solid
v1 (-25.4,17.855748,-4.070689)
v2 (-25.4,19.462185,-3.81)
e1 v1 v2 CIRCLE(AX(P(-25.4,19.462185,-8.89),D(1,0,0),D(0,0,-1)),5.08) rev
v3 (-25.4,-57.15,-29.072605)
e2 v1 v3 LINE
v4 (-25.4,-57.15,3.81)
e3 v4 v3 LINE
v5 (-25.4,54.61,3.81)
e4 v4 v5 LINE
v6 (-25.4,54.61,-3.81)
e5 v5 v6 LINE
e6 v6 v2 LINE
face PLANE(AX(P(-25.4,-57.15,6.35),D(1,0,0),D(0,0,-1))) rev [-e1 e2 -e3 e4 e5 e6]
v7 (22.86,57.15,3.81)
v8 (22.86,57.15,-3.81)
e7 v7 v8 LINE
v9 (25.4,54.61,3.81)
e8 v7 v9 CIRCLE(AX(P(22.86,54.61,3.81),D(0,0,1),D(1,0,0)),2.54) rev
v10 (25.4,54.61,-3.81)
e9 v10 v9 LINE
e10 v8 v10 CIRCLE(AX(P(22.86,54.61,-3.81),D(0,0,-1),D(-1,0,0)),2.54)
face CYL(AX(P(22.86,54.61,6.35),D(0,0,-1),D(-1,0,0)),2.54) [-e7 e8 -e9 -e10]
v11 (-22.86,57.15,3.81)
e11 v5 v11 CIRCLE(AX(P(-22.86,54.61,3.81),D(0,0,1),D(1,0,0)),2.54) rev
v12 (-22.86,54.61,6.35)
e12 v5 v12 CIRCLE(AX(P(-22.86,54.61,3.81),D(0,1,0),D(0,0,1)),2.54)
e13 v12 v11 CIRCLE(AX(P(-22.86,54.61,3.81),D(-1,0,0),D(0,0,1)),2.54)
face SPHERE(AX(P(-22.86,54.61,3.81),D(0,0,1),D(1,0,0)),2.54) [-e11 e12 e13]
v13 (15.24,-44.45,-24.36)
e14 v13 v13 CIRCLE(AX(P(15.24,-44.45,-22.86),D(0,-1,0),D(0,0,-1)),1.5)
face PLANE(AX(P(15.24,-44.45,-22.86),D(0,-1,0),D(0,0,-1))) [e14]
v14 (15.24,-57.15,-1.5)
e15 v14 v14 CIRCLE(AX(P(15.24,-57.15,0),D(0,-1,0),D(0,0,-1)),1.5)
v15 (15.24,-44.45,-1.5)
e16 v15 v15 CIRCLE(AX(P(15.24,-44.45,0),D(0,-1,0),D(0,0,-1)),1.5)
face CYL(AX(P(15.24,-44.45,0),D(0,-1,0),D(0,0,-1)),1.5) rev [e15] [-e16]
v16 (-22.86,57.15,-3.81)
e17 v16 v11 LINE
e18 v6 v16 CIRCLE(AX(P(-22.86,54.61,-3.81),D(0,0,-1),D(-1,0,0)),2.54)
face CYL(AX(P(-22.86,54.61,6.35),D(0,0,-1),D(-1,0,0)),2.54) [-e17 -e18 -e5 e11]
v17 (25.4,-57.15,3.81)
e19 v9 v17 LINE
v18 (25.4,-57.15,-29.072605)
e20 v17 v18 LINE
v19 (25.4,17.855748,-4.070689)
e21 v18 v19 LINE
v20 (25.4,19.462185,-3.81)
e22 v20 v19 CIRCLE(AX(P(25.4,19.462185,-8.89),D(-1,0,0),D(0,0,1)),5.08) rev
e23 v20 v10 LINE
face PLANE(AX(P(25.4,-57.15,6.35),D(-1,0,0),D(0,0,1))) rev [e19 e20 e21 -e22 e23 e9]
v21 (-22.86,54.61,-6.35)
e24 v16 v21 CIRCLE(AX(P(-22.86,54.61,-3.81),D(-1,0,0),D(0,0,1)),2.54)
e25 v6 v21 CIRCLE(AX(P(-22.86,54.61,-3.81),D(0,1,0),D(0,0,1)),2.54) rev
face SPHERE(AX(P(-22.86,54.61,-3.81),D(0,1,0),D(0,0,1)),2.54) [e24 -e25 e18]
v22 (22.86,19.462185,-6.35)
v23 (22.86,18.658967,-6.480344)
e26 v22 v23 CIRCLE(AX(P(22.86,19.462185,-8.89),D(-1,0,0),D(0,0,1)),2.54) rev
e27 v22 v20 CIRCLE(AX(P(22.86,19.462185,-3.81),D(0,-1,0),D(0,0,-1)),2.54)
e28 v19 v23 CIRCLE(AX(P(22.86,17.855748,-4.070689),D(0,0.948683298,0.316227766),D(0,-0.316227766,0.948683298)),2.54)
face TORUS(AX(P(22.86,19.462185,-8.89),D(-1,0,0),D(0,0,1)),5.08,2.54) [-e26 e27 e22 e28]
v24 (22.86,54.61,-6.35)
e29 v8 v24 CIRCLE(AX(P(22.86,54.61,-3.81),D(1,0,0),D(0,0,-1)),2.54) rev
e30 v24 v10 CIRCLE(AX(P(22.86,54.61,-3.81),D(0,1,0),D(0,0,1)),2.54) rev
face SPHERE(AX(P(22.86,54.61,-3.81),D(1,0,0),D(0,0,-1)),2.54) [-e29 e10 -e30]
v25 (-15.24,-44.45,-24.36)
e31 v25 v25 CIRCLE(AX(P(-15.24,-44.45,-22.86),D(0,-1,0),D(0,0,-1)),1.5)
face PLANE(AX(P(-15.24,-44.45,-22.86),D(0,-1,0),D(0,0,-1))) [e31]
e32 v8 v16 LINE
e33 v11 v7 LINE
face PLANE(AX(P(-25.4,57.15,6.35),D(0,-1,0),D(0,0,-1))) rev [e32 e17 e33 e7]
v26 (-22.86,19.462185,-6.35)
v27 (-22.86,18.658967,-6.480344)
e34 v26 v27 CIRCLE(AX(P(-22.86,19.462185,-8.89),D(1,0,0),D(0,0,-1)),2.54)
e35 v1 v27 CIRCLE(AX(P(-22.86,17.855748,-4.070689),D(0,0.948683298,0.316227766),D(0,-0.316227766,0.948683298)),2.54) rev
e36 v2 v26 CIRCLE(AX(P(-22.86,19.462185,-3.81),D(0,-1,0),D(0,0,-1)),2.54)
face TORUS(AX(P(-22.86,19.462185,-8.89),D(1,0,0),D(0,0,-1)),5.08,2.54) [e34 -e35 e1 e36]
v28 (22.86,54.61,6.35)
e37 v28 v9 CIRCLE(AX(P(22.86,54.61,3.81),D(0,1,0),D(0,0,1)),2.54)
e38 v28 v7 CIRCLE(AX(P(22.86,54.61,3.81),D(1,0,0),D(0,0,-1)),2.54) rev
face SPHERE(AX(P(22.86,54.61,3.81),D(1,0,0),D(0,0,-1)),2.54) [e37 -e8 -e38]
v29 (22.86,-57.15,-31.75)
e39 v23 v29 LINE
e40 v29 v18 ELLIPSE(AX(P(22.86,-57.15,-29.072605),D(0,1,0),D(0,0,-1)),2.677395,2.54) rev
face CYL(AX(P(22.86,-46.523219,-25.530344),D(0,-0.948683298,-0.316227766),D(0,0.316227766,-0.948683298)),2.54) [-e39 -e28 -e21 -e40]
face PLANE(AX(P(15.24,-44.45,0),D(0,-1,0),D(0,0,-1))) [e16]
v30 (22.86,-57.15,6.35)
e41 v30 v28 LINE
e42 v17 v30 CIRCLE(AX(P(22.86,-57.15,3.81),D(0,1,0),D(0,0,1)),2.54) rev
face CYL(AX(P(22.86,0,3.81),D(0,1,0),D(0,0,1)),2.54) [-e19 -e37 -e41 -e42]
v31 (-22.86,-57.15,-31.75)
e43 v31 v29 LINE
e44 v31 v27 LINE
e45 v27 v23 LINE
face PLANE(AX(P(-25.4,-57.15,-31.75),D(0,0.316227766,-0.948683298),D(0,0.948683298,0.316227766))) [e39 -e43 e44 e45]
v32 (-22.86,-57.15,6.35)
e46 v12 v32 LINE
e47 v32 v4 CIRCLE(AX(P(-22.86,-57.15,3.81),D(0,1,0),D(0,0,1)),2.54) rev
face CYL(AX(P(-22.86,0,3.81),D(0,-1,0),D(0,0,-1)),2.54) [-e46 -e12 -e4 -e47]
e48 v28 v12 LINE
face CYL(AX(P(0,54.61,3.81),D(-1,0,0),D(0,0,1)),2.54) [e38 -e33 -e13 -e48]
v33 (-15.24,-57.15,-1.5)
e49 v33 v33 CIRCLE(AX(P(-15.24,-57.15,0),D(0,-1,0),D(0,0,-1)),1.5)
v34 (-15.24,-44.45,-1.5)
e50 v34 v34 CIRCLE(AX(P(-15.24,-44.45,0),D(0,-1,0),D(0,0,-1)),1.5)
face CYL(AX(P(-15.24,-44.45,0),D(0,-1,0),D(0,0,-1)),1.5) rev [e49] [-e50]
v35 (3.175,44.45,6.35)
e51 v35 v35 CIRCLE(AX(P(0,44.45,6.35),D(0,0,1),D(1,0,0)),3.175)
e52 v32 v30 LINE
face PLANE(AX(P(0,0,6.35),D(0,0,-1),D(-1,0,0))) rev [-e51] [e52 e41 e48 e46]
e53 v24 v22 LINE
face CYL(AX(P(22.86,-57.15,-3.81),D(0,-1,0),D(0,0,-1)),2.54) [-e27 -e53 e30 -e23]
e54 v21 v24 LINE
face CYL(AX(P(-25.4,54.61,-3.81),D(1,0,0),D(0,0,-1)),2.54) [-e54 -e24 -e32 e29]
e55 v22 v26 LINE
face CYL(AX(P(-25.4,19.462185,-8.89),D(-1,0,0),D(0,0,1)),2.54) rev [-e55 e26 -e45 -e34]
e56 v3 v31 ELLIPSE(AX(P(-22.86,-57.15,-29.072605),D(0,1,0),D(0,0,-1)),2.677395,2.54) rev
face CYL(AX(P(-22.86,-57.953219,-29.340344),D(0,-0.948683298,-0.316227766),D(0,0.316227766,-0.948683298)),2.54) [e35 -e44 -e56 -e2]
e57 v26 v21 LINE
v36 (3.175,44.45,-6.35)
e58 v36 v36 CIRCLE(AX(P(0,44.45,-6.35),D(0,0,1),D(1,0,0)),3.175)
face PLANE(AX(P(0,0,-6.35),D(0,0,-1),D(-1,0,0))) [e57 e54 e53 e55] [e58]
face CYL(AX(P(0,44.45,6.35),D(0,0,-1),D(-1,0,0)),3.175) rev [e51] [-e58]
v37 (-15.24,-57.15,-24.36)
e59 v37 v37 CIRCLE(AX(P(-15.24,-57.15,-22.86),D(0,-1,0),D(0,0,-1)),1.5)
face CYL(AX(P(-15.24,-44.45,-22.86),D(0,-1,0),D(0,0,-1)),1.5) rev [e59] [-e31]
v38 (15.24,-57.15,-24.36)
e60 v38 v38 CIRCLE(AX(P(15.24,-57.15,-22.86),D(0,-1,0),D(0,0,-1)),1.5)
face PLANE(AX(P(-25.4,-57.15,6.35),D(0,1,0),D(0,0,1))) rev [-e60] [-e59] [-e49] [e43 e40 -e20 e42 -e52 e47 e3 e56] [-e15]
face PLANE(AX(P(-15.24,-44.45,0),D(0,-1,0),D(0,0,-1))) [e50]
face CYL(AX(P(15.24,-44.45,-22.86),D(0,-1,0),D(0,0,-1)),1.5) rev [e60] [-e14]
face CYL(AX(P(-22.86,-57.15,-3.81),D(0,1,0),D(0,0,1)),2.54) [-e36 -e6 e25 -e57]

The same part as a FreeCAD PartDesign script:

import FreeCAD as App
import Part
import Sketcher

V = App.Vector
Q = App.Units.Quantity


def edges_at(feature, points):
    """Names of the edges that pass closest to the given points."""
    edges = feature.Shape.Edges
    near = lambda p: min(range(len(edges)), key=lambda i: edges[i].distToShape(Part.Vertex(*p))[0])
    return sorted({f"Edge{near(p) + 1}" for p in points})


def add_polygon(sketch, points):
    """Adds a closed chain of lines whose ends are joined by coincident constraints."""
    first, n = sketch.GeometryCount, len(points)
    for a, b in zip(points, points[1:] + points[:1]):
        sketch.addGeometry(Part.LineSegment(App.Vector(*a, 0), App.Vector(*b, 0)), False)
    for i in range(n):
        sketch.addConstraint(Sketcher.Constraint("Coincident", first + i, 2, first + (i + 1) % n, 1))

doc = App.newDocument("Part")
body = doc.addObject("PartDesign::Body", "Body")

sketch1 = body.newObject("Sketcher::SketchObject", "Sketch")
sketch1.AttachmentSupport = (doc.getObject("XY_Plane"), [""])
sketch1.MapMode = "FlatFace"
add_polygon(sketch1, [(-25.4, 57.1), (-25.4, -57.1), (25.4, -57.1), (25.4, 57.1)])
sketch1.addGeometry(Part.Circle(V(0, 44.5, 0), V(0, 0, 1), 3.2), False)
sketch1.addConstraint(Sketcher.Constraint("Vertical", 0))
sketch1.addConstraint(Sketcher.Constraint("Horizontal", 1))
sketch1.addConstraint(Sketcher.Constraint("Vertical", 2))
sketch1.addConstraint(Sketcher.Constraint("Horizontal", 3))
sketch1.addConstraint(Sketcher.Constraint("Symmetric", 0, 2, 2, 2, -1, 1))
sketch1.addConstraint(Sketcher.Constraint("PointOnObject", 4, 3, -2))
sketch1.addConstraint(Sketcher.Constraint("Diameter", 4, Q("0.25 in")))
sketch1.addConstraint(Sketcher.Constraint("DistanceX", 1, 1, 1, 2, Q("2 in")))
sketch1.addConstraint(Sketcher.Constraint("DistanceY", 0, 2, 0, 1, Q("4.5 in")))
sketch1.addConstraint(Sketcher.Constraint("DistanceY", 0, 2, 4, 3, Q("4 in")))
pad1 = body.newObject("PartDesign::Pad", "Pad")
pad1.Profile = sketch1
pad1.Length = Q("0.5 in")
pad1.Midplane = True

sketch2 = body.newObject("Sketcher::SketchObject", "Sketch001")
sketch2.AttachmentSupport = (doc.getObject("YZ_Plane"), [""])
sketch2.MapMode = "FlatFace"
sketch2.AttachmentOffset = App.Placement(V(0, 0, 1 * 25.4), App.Rotation())
add_polygon(sketch2, [(-57, -6), (-57, -32), (19, -6)])
sketch2.addConstraint(Sketcher.Constraint("Vertical", 0))
sketch2.addConstraint(Sketcher.Constraint("Horizontal", 2))
sketch2.addConstraint(Sketcher.Constraint("DistanceX", 2, 2, 2, 1, Q("3 in")))
sketch2.addConstraint(Sketcher.Constraint("DistanceY", 0, 2, 0, 1, Q("1 in")))
sketch2.addConstraint(Sketcher.Constraint("DistanceX", 0, 2, -1, 1, Q("2.25 in")))
sketch2.addConstraint(Sketcher.Constraint("DistanceY", 0, 2, -1, 1, Q("1.25 in")))
pad2 = body.newObject("PartDesign::Pad", "Pad001")
pad2.Profile = sketch2
pad2.Length = Q("2 in")
pad2.Reversed = True

sketch3 = body.newObject("Sketcher::SketchObject", "Sketch002")
sketch3.AttachmentSupport = (doc.getObject("XZ_Plane"), [""])
sketch3.MapMode = "FlatFace"
sketch3.AttachmentOffset = App.Placement(V(0, 0, 2.25 * 25.4), App.Rotation())
sketch3.addGeometry(Part.Circle(V(-15.2, 0, 0), V(0, 0, 1), 1.5), False)
sketch3.addGeometry(Part.Circle(V(15.2, 0, 0), V(0, 0, 1), 1.5), False)
sketch3.addGeometry(Part.Circle(V(-15.2, -22.9, 0), V(0, 0, 1), 1.5), False)
sketch3.addGeometry(Part.Circle(V(15.2, -22.9, 0), V(0, 0, 1), 1.5), False)
sketch3.addConstraint(Sketcher.Constraint("Equal", 0, 1))
sketch3.addConstraint(Sketcher.Constraint("Equal", 1, 2))
sketch3.addConstraint(Sketcher.Constraint("Equal", 2, 3))
sketch3.addConstraint(Sketcher.Constraint("Symmetric", 0, 3, 1, 3, -1, 1))
sketch3.addConstraint(Sketcher.Constraint("Symmetric", 2, 3, 3, 3, -2))
sketch3.addConstraint(Sketcher.Constraint("PointOnObject", 0, 3, -1))
sketch3.addConstraint(Sketcher.Constraint("Vertical", 0, 3, 2, 3))
sketch3.addConstraint(Sketcher.Constraint("DistanceX", 0, 3, -1, 1, Q("0.6 in")))
sketch3.addConstraint(Sketcher.Constraint("DistanceY", 2, 3, -1, 1, Q("0.9 in")))
sketch3.addConstraint(Sketcher.Constraint("Diameter", 0, 3.0))
pocket1 = body.newObject("PartDesign::Pocket", "Pocket")
pocket1.Profile = sketch3
pocket1.Length = Q("0.5 in")
doc.recompute()

fillet = body.newObject("PartDesign::Fillet", "Fillet")
fillet.Base = (pocket1, edges_at(pocket1, [
    (-25.4, 0, 6.35),
    (25.4, 38.1, -6.35),
    (-25.4, -19.05, -19.05),
    (0, 19.05, -6.35),
    (25.4, -19.05, -19.05),
    (25.4, 0, 6.35),
    (-25.4, 38.1, -6.35),
    (0, 57.15, -6.35),
    (-25.4, 57.15, 0),
    (25.4, 57.15, 0),
    (0, 57.15, 6.35),
]))
fillet.Radius = Q("0.1 in")

doc.recompute()
